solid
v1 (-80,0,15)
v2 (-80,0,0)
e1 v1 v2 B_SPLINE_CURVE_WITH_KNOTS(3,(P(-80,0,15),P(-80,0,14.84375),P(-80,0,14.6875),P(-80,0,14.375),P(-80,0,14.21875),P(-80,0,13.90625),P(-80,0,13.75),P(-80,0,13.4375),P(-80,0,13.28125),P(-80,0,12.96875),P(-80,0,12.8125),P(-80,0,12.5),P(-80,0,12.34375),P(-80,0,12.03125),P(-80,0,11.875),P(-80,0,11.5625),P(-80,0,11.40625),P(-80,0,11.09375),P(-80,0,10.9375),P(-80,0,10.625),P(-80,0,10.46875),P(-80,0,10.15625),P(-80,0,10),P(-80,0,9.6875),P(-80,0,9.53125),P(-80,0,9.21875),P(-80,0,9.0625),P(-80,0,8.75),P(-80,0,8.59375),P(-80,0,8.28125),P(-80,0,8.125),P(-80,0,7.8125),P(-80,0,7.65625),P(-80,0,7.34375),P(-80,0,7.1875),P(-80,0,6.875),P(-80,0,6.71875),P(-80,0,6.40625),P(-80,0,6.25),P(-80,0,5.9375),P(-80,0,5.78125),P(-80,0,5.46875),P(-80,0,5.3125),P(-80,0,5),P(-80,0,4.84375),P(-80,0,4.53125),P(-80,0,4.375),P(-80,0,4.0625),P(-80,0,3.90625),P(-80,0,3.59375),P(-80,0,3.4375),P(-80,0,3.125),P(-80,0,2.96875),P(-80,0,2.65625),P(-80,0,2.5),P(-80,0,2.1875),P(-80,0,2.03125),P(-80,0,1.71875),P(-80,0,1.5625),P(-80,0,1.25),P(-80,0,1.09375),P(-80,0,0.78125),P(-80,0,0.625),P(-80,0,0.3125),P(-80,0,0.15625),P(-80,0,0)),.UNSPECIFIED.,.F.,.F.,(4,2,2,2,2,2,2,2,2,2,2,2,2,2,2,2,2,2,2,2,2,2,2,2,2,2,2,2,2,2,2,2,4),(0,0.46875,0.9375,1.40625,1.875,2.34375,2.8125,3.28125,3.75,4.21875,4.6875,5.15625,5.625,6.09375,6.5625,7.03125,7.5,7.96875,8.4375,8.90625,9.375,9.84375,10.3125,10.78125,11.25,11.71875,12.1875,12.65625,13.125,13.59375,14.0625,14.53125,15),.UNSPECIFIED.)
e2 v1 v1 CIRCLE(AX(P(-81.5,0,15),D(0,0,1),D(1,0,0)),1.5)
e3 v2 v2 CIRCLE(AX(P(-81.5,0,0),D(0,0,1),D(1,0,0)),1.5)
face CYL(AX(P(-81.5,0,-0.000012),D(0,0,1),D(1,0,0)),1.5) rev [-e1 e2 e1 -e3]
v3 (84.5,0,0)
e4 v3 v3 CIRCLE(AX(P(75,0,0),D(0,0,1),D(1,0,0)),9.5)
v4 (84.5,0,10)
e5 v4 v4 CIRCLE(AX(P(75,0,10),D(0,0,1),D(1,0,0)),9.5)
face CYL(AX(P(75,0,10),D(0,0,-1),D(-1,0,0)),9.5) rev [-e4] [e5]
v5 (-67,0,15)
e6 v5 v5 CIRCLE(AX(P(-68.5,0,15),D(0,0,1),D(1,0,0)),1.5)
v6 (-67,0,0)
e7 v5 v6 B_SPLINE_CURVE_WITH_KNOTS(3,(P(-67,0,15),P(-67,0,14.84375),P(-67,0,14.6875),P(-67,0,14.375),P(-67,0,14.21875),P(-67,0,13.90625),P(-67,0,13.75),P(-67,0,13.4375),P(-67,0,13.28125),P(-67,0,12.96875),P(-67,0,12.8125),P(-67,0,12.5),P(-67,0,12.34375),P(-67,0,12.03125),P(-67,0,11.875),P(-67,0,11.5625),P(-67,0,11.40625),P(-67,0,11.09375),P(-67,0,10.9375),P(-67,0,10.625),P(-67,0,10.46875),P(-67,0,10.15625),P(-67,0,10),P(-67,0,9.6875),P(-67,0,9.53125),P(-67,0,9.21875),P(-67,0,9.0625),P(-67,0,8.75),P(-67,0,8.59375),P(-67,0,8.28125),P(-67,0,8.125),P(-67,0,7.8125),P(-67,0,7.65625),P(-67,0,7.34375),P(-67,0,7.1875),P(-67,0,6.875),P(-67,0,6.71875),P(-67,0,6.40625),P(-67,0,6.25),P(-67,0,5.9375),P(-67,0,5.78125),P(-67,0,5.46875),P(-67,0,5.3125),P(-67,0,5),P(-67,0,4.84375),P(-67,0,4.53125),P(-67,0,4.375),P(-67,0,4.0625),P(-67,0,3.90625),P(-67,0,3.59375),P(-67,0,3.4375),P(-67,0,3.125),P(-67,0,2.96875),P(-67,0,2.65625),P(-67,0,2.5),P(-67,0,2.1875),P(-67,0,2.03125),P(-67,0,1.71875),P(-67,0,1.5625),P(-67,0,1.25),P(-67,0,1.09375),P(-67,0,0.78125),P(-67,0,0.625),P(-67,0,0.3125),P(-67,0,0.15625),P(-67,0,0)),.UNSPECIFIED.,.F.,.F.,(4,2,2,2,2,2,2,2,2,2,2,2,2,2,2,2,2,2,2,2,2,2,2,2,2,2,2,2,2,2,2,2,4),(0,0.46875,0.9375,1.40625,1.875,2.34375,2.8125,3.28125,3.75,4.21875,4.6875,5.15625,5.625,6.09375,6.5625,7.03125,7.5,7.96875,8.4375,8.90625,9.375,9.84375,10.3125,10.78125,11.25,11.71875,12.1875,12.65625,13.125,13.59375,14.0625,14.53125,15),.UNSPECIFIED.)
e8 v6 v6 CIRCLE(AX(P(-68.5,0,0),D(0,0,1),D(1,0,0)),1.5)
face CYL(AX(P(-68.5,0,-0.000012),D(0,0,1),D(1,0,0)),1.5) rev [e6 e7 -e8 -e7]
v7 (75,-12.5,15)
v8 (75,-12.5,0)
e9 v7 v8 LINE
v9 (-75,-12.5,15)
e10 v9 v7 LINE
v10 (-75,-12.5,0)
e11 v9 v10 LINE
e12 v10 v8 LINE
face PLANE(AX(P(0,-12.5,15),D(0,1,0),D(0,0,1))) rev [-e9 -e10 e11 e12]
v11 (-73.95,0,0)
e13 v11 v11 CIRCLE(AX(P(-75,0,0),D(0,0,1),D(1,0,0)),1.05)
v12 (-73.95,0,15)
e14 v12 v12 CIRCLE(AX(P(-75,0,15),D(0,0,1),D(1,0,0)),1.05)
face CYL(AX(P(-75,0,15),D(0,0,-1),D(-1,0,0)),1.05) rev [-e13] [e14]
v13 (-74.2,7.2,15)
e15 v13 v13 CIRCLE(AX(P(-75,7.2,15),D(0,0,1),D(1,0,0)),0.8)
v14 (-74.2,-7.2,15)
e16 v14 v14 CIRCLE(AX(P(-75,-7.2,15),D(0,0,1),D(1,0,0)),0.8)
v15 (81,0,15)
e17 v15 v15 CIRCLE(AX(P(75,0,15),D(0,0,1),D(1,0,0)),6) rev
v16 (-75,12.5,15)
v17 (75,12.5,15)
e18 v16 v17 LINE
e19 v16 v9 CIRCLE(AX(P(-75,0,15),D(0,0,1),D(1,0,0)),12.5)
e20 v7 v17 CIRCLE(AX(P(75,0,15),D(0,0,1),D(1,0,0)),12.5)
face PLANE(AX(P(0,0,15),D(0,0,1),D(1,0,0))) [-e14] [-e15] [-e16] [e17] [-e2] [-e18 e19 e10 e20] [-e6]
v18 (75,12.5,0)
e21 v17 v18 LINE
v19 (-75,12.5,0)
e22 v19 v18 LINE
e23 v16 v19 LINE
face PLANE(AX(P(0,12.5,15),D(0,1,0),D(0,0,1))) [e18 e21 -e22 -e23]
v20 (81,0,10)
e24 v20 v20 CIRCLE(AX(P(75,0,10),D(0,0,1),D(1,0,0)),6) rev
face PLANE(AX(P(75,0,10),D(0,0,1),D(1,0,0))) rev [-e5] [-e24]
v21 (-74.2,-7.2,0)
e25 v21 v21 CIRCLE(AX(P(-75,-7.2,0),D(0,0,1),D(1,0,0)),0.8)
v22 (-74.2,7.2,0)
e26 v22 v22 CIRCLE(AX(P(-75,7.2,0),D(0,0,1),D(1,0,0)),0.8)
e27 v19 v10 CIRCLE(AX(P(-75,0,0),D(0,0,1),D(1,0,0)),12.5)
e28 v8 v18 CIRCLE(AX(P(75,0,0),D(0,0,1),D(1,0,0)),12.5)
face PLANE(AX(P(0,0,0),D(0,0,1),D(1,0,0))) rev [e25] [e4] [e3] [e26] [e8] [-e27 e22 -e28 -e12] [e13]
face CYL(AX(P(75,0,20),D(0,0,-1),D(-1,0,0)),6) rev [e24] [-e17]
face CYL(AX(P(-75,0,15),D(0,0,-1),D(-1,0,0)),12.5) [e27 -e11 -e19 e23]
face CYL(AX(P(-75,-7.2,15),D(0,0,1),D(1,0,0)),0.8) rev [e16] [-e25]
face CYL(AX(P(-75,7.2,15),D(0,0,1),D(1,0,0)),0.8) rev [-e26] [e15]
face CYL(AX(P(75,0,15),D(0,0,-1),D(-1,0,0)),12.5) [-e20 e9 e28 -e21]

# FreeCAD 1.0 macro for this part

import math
import FreeCAD as App
import Part
import Sketcher
Q = App.Units.Quantity

doc = App.newDocument("Part")
body = doc.addObject("PartDesign::Body", "Body")

# Sketch on XY plane
sketch1 = body.newObject("Sketcher::SketchObject", "Sketch")
sketch1.AttachmentSupport = (doc.getObject("XY_Plane"), [""])
sketch1.MapMode = "FlatFace"
sketch1.addGeometry([
    Part.LineSegment(App.Vector(-75, -12.5, 0), App.Vector(75, -12.5, 0)),  # 0
    Part.ArcOfCircle(Part.Circle(App.Vector(75, 0, 0), App.Vector(0, 0, 1), 12.5), math.radians(-90), math.radians(0)),  # 1
    Part.ArcOfCircle(Part.Circle(App.Vector(75, 0, 0), App.Vector(0, 0, 1), 12.5), math.radians(0), math.radians(90)),  # 2
    Part.LineSegment(App.Vector(75, 12.5, 0), App.Vector(-75, 12.5, 0)),  # 3
    Part.ArcOfCircle(Part.Circle(App.Vector(-75, 0, 0), App.Vector(0, 0, 1), 12.5), math.radians(90), math.radians(270)),  # 4
    Part.ArcOfCircle(Part.Circle(App.Vector(-75, 0, 0), App.Vector(0, 0, 1), 1.1), math.radians(-90), math.radians(0)),  # 5
    Part.ArcOfCircle(Part.Circle(App.Vector(-75, 0, 0), App.Vector(0, 0, 1), 1.1), math.radians(90), math.radians(270)),  # 6
    Part.ArcOfCircle(Part.Circle(App.Vector(-75, 0, 0), App.Vector(0, 0, 1), 1.1), math.radians(0), math.radians(90)),  # 7
    Part.ArcOfCircle(Part.Circle(App.Vector(75, 0, 0), App.Vector(0, 0, 1), 1.1), math.radians(90), math.radians(270)),  # 8
    Part.ArcOfCircle(Part.Circle(App.Vector(75, 0, 0), App.Vector(0, 0, 1), 1.1), math.radians(0), math.radians(90)),  # 9
    Part.ArcOfCircle(Part.Circle(App.Vector(75, 0, 0), App.Vector(0, 0, 1), 1.1), math.radians(-90), math.radians(0)),  # 10
], False)
sketch1.addConstraint([
    Sketcher.Constraint("Tangent", 0, 2, 1, 1),
    Sketcher.Constraint("Tangent", 1, 2, 2, 1),
    Sketcher.Constraint("Tangent", 2, 2, 3, 1),
    Sketcher.Constraint("Tangent", 3, 2, 4, 1),
    Sketcher.Constraint("Tangent", 4, 2, 0, 1),
    Sketcher.Constraint("Tangent", 5, 1, 6, 2),
    Sketcher.Constraint("Tangent", 6, 1, 7, 2),
    Sketcher.Constraint("Tangent", 7, 1, 5, 2),
    Sketcher.Constraint("Tangent", 8, 1, 9, 2),
    Sketcher.Constraint("Tangent", 9, 1, 10, 2),
    Sketcher.Constraint("Tangent", 10, 1, 8, 2),
    Sketcher.Constraint("Horizontal", 0),
    Sketcher.Constraint("Horizontal", 3),
    Sketcher.Constraint("Coincident", 5, 3, 4, 3),
    Sketcher.Constraint("Coincident", 8, 3, 1, 3),
    Sketcher.Constraint("Equal", 1, 2),
    Sketcher.Constraint("Equal", 7, 8),
    Sketcher.Constraint("Symmetric", 1, 3, 4, 3, -1, 1),
    Sketcher.Constraint("PointOnObject", 1, 2, -1),
    Sketcher.Constraint("PointOnObject", 7, 1, -1),
    Sketcher.Constraint("PointOnObject", 9, 1, -1),
    Sketcher.Constraint("Vertical", 4, 2, 5, 1),
    Sketcher.Constraint("Vertical", 5, 1, 6, 1),
    Sketcher.Constraint("Vertical", 2, 2, 8, 1),
    Sketcher.Constraint("Vertical", 8, 1, 10, 1),
    Sketcher.Constraint("Radius", 1, Q("12.5 mm")),
    Sketcher.Constraint("DistanceX", 0, 1, 0, 2, Q("150 mm")),
    Sketcher.Constraint("Radius", 5, Q("1.05 mm")),
])
pad1 = body.newObject("PartDesign::Pad", "Pad")
pad1.Profile = sketch1
pad1.Length = 15

# Sketch on XY plane
sketch2 = body.newObject("Sketcher::SketchObject", "Sketch001")
sketch2.AttachmentSupport = (doc.getObject("XY_Plane"), [""])
sketch2.MapMode = "FlatFace"
sketch2.addGeometry([
    Part.Circle(App.Vector(-68.5, 0, 0), App.Vector(0, 0, 1), 1.5),
    Part.Circle(App.Vector(-81.5, 0, 0), App.Vector(0, 0, 1), 1.5),
], False)
sketch2.addConstraint([
    Sketcher.Constraint("Equal", 0, 1),
    Sketcher.Constraint("PointOnObject", 0, 3, -1),
    Sketcher.Constraint("PointOnObject", 1, 3, -1),
    Sketcher.Constraint("Diameter", 0, Q("3 mm")),
    Sketcher.Constraint("DistanceX", 1, 3, 0, 3, Q("13 mm")),
    Sketcher.Constraint("DistanceX", 0, 3, -1, 1, Q("68.5 mm")),
])
pocket1 = body.newObject("PartDesign::Pocket", "Pocket")
pocket1.Profile = sketch2
pocket1.Type = "ThroughAll"
pocket1.Midplane = True

# Sketch on XY plane
sketch3 = body.newObject("Sketcher::SketchObject", "Sketch002")
sketch3.AttachmentSupport = (doc.getObject("XY_Plane"), [""])
sketch3.MapMode = "FlatFace"
sketch3.addGeometry(Part.Circle(App.Vector(75, 0, 0), App.Vector(0, 0, 1), 10), False)
sketch3.addConstraint([
    Sketcher.Constraint("PointOnObject", 0, 3, -1),
    Sketcher.Constraint("Diameter", 0, Q("19 mm")),
    Sketcher.Constraint("DistanceX", -1, 1, 0, 3, Q("75 mm")),
])
pocket2 = body.newObject("PartDesign::Pocket", "Pocket001")
pocket2.Profile = sketch3
pocket2.Length = 10
pocket2.Reversed = True

# Sketch on XY plane
sketch4 = body.newObject("Sketcher::SketchObject", "Sketch003")
sketch4.AttachmentSupport = (doc.getObject("XY_Plane"), [""])
sketch4.MapMode = "FlatFace"
sketch4.addGeometry(Part.Circle(App.Vector(75, 0, 0), App.Vector(0, 0, 1), 6), False)
sketch4.addConstraint([
    Sketcher.Constraint("PointOnObject", 0, 3, -1),
    Sketcher.Constraint("Diameter", 0, Q("12 mm")),
    Sketcher.Constraint("DistanceX", -1, 1, 0, 3, Q("75 mm")),
])
pocket3 = body.newObject("PartDesign::Pocket", "Pocket002")
pocket3.Profile = sketch4
pocket3.Length = 20
pocket3.Reversed = True

# Sketch on XY plane
sketch5 = body.newObject("Sketcher::SketchObject", "Sketch004")
sketch5.AttachmentSupport = (doc.getObject("XY_Plane"), [""])
sketch5.MapMode = "FlatFace"
sketch5.AttachmentOffset = App.Placement(App.Vector(0, 0, 15), App.Rotation())
sketch5.addGeometry([
    Part.Circle(App.Vector(-75, 7.2, 0), App.Vector(0, 0, 1), 0.8),
    Part.Circle(App.Vector(-67.8, 0, 0), App.Vector(0, 0, 1), 0.8),
    Part.Circle(App.Vector(-75, -7.2, 0), App.Vector(0, 0, 1), 0.8),
], False)
sketch5.addConstraint([
    Sketcher.Constraint("Equal", 0, 1),
    Sketcher.Constraint("Equal", 1, 2),
    Sketcher.Constraint("Symmetric", 0, 3, 2, 3, -1),
    Sketcher.Constraint("PointOnObject", 1, 3, -1),
    Sketcher.Constraint("Diameter", 0, Q("1.6 mm")),
    Sketcher.Constraint("DistanceX", 0, 3, -1, 1, Q("75 mm")),
    Sketcher.Constraint("DistanceY", -1, 1, 0, 3, Q("7.2 mm")),
    Sketcher.Constraint("DistanceX", 1, 3, -1, 1, Q("67.8 mm")),
])
doc.recompute()
hole = body.newObject("PartDesign::Hole", "Hole")
hole.Profile = sketch5
hole.ThreadType = "None"
hole.Diameter = 1.6
hole.DepthType = "ThroughAll"

# Sketch on XY plane
sketch6 = body.newObject("Sketcher::SketchObject", "Sketch005")
sketch6.AttachmentSupport = (doc.getObject("XY_Plane"), [""])
sketch6.MapMode = "FlatFace"
sketch6.AttachmentOffset = App.Placement(App.Vector(0, 0, 15), App.Rotation())
sketch6.addGeometry(Part.Circle(App.Vector(-67.8, 0, 0), App.Vector(0, 0, 1), 0.8), False)
sketch6.addConstraint([
    Sketcher.Constraint("PointOnObject", 0, 3, -1),
    Sketcher.Constraint("Diameter", 0, Q("1.6 mm")),
    Sketcher.Constraint("DistanceX", 0, 3, -1, 1, Q("67.8 mm")),
])
doc.recompute()
hole2 = body.newObject("PartDesign::Hole", "Hole001")
hole2.Profile = sketch6
hole2.ThreadType = "None"
hole2.Diameter = 1.6
hole2.DepthType = "ThroughAll"

doc.recompute()
